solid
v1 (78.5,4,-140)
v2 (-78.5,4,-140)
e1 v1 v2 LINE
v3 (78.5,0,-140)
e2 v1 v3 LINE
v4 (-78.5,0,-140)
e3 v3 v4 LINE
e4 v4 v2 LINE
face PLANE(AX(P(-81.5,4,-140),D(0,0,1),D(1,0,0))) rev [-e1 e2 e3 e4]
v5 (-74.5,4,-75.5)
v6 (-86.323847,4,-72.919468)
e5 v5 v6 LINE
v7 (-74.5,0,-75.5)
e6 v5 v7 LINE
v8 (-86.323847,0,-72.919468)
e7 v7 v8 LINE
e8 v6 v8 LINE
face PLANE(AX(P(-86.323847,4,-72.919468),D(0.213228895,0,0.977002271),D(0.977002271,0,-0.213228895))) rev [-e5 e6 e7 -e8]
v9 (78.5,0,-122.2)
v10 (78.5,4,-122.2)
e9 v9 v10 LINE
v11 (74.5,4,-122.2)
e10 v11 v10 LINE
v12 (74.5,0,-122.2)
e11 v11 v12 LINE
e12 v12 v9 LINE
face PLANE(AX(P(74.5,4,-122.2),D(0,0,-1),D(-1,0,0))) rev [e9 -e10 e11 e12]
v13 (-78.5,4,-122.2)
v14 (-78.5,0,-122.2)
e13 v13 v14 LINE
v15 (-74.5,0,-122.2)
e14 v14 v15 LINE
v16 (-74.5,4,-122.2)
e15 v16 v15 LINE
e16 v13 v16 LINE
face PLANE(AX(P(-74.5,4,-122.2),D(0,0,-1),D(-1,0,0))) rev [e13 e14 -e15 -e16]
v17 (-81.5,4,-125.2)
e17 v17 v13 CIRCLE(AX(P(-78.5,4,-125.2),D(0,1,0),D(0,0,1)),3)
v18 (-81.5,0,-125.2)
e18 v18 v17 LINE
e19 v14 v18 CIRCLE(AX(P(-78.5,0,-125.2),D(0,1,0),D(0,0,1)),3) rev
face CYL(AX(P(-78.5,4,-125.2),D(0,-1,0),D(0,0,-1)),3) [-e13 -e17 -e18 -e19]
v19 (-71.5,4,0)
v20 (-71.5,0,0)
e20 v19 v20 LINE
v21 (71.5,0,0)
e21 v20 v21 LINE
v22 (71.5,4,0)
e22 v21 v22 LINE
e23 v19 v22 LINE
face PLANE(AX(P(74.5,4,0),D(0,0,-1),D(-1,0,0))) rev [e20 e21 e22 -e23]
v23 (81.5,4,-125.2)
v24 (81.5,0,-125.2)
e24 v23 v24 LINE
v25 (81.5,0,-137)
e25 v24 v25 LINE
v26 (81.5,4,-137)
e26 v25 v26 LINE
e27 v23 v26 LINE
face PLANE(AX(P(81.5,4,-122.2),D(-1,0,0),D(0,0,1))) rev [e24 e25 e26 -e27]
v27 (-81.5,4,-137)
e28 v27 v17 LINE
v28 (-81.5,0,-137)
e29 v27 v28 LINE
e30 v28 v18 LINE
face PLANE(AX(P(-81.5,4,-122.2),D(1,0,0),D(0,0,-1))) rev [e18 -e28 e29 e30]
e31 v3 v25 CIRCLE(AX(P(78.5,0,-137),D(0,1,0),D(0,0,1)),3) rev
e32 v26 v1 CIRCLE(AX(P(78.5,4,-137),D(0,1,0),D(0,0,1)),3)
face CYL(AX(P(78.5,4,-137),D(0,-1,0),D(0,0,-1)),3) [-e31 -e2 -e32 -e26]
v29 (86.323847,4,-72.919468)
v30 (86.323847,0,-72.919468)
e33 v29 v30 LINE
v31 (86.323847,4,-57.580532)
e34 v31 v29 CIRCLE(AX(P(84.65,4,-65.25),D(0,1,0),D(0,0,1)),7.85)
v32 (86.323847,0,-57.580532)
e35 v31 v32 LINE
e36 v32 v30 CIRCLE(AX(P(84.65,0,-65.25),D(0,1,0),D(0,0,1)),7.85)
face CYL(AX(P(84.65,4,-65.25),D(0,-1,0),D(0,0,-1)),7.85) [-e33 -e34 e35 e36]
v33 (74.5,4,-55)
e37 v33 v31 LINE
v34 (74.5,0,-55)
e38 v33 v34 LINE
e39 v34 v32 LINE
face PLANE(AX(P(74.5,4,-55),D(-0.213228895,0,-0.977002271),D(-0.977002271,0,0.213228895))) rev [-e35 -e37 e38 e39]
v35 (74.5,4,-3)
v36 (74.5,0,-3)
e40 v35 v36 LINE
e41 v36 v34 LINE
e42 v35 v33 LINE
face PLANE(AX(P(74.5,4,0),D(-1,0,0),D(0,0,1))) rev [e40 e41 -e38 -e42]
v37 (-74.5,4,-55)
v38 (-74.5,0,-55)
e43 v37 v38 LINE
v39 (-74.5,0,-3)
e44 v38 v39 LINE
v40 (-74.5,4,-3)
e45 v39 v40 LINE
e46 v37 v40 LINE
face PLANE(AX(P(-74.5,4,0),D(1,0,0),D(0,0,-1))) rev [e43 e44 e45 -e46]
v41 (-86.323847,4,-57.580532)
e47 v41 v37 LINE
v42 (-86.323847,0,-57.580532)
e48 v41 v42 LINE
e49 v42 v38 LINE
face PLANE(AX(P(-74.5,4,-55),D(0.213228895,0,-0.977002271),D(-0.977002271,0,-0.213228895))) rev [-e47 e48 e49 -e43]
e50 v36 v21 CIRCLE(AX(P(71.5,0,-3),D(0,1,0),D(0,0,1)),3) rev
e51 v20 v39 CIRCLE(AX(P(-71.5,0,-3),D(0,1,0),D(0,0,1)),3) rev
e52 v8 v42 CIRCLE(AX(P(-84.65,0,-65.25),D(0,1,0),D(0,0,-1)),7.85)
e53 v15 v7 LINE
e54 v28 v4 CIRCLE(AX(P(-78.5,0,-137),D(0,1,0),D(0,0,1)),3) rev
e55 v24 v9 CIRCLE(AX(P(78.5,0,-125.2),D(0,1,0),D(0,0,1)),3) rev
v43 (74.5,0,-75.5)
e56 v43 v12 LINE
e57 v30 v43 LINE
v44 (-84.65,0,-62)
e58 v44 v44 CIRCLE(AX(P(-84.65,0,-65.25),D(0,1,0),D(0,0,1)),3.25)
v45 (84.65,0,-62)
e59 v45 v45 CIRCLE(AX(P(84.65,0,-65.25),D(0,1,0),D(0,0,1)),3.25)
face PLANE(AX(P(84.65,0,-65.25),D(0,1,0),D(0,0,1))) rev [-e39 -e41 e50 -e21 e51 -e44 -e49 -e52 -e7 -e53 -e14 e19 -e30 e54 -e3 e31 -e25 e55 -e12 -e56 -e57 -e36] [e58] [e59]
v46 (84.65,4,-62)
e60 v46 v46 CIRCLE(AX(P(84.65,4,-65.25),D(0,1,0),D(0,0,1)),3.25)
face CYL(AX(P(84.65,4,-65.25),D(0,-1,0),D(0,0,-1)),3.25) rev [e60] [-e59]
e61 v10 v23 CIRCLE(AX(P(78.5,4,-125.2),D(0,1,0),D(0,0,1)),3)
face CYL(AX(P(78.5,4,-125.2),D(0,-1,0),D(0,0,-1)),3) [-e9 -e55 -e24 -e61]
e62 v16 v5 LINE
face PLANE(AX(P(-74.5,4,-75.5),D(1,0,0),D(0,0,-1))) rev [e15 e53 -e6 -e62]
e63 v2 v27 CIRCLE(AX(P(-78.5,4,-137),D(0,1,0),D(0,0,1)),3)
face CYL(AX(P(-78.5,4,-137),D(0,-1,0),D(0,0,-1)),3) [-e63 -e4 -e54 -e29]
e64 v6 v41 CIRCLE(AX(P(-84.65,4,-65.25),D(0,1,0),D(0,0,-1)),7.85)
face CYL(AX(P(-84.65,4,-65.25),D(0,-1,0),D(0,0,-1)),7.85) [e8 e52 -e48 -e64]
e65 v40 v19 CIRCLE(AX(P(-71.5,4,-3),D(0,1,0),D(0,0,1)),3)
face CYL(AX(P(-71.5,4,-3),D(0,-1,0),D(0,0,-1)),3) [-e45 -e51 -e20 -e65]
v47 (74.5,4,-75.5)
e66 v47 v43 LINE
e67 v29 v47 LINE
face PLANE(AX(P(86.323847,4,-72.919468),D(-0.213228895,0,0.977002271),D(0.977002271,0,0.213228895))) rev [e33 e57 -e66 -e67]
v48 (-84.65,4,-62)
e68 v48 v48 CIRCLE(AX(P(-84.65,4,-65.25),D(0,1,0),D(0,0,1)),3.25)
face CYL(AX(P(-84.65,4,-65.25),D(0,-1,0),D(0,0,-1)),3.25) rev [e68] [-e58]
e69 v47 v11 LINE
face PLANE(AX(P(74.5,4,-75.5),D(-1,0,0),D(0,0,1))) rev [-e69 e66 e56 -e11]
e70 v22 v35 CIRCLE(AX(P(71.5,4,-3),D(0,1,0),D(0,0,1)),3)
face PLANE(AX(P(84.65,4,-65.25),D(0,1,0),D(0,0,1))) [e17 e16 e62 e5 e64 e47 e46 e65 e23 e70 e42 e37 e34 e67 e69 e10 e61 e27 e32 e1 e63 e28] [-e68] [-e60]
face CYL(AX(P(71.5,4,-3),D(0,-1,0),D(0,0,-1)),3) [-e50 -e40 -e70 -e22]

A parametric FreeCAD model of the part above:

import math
import FreeCAD as App
import Part
import Sketcher


def edges_at(feature, points):
    """Names of the edges that pass closest to the given points."""
    edges = feature.Shape.Edges
    near = lambda p: min(range(len(edges)), key=lambda i: edges[i].distToShape(Part.Vertex(*p))[0])
    return sorted({f"Edge{near(p) + 1}" for p in points})

doc = App.newDocument("Part")
body = doc.addObject("PartDesign::Body", "Body")

# Sketch on XZ plane
sketch1 = body.newObject("Sketcher::SketchObject", "Sketch")
sketch1.AttachmentSupport = (doc.getObject("XZ_Plane"), [""])
sketch1.MapMode = "FlatFace"
sketch1.addGeometry([
    Part.LineSegment(App.Vector(-74.5, 0, 0), App.Vector(74.5, 0, 0)),  # 0
    Part.LineSegment(App.Vector(74.5, 0, 0), App.Vector(74.5, -55, 0)),  # 1
    Part.LineSegment(App.Vector(74.5, -55, 0), App.Vector(86.3, -57.6, 0)),  # 2
    Part.ArcOfCircle(Part.Circle(App.Vector(84.7, -65.2, 0), App.Vector(0, 0, 1), 7.8), math.radians(-78), math.radians(78)),  # 3
    Part.LineSegment(App.Vector(86.3, -72.9, 0), App.Vector(74.5, -75.5, 0)),  # 4
    Part.LineSegment(App.Vector(74.5, -75.5, 0), App.Vector(74.5, -122.2, 0)),  # 5
    Part.LineSegment(App.Vector(74.5, -122.2, 0), App.Vector(81.5, -122.2, 0)),  # 6
    Part.LineSegment(App.Vector(81.5, -122.2, 0), App.Vector(81.5, -140, 0)),  # 7
    Part.LineSegment(App.Vector(81.5, -140, 0), App.Vector(-81.5, -140, 0)),  # 8
    Part.LineSegment(App.Vector(-81.5, -140, 0), App.Vector(-81.5, -122.2, 0)),  # 9
    Part.LineSegment(App.Vector(-81.5, -122.2, 0), App.Vector(-74.5, -122.2, 0)),  # 10
    Part.LineSegment(App.Vector(-74.5, -122.2, 0), App.Vector(-74.5, -75.5, 0)),  # 11
    Part.LineSegment(App.Vector(-74.5, -75.5, 0), App.Vector(-86.3, -72.9, 0)),  # 12
    Part.ArcOfCircle(Part.Circle(App.Vector(-84.7, -65.2, 0), App.Vector(0, 0, 1), 7.8), math.radians(102), math.radians(258)),  # 13
    Part.LineSegment(App.Vector(-86.3, -57.6, 0), App.Vector(-74.5, -55, 0)),  # 14
    Part.LineSegment(App.Vector(-74.5, -55, 0), App.Vector(-74.5, 0, 0)),  # 15
    Part.Circle(App.Vector(84.7, -65.2, 0), App.Vector(0, 0, 1), 3.2),  # 16
    Part.Circle(App.Vector(-84.7, -65.2, 0), App.Vector(0, 0, 1), 3.2),  # 17
], False)
sketch1.addConstraint([
    Sketcher.Constraint("Coincident", 0, 2, 1, 1),
    Sketcher.Constraint("Coincident", 1, 2, 2, 1),
    Sketcher.Constraint("Tangent", 2, 2, 3, 2),
    Sketcher.Constraint("Tangent", 3, 1, 4, 1),
    Sketcher.Constraint("Coincident", 4, 2, 5, 1),
    Sketcher.Constraint("Coincident", 5, 2, 6, 1),
    Sketcher.Constraint("Coincident", 6, 2, 7, 1),
    Sketcher.Constraint("Coincident", 7, 2, 8, 1),
    Sketcher.Constraint("Coincident", 8, 2, 9, 1),
    Sketcher.Constraint("Coincident", 9, 2, 10, 1),
    Sketcher.Constraint("Coincident", 10, 2, 11, 1),
    Sketcher.Constraint("Coincident", 11, 2, 12, 1),
    Sketcher.Constraint("Tangent", 12, 2, 13, 2),
    Sketcher.Constraint("Tangent", 13, 1, 14, 1),
    Sketcher.Constraint("Coincident", 14, 2, 15, 1),
    Sketcher.Constraint("Coincident", 15, 2, 0, 1),
    Sketcher.Constraint("Horizontal", 0),
    Sketcher.Constraint("Vertical", 1),
    Sketcher.Constraint("Vertical", 5),
    Sketcher.Constraint("Horizontal", 6),
    Sketcher.Constraint("Vertical", 7),
    Sketcher.Constraint("Horizontal", 8),
    Sketcher.Constraint("Vertical", 9),
    Sketcher.Constraint("Horizontal", 10),
    Sketcher.Constraint("Vertical", 11),
    Sketcher.Constraint("Vertical", 15),
    Sketcher.Constraint("Coincident", 16, 3, 3, 3),
    Sketcher.Constraint("Coincident", 17, 3, 13, 3),
    Sketcher.Constraint("Equal", 3, 13),
    Sketcher.Constraint("Equal", 16, 17),
    Sketcher.Constraint("Symmetric", 0, 2, 15, 2, -1, 1),
    Sketcher.Constraint("Symmetric", 3, 3, 13, 3, -2),
    Sketcher.Constraint("Symmetric", 6, 2, 9, 2, -2),
    Sketcher.Constraint("Symmetric", 4, 2, 11, 2, -2),
    Sketcher.Constraint("Parallel", 2, 12),
    Sketcher.Constraint("Parallel", 4, 14),
    Sketcher.Constraint("Vertical", 1, 2, 4, 2),
    Sketcher.Constraint("Diameter", 16, 6.5),
    Sketcher.Constraint("DistanceX", 0, 1, 0, 2, 149.0),
    Sketcher.Constraint("DistanceX", 6, 1, 6, 2, 7.0),
    Sketcher.Constraint("DistanceY", 1, 2, 1, 1, 55.0),
    Sketcher.Constraint("Radius", 3, 7.85),
    Sketcher.Constraint("DistanceY", 5, 2, 5, 1, 46.7),
    Sketcher.Constraint("DistanceY", 7, 2, 7, 1, 17.8),
    Sketcher.Constraint("DistanceY", 7, 2, -1, 1, 140.0),
    Sketcher.Constraint("DistanceX", 13, 3, 3, 3, 169.3),
])
pad1 = body.newObject("PartDesign::Pad", "Pad")
pad1.Profile = sketch1
pad1.Length = 4
pad1.Reversed = True
doc.recompute()

fillet = body.newObject("PartDesign::Fillet", "Fillet")
fillet.Base = (pad1, edges_at(pad1, [
    (74.5, 2, 0),
    (-74.5, 2, 0),
    (-81.5, 2, -122.2),
    (-81.5, 2, -140),
    (81.5, 2, -140),
    (81.5, 2, -122.2),
]))
fillet.Radius = 3

doc.recompute()
